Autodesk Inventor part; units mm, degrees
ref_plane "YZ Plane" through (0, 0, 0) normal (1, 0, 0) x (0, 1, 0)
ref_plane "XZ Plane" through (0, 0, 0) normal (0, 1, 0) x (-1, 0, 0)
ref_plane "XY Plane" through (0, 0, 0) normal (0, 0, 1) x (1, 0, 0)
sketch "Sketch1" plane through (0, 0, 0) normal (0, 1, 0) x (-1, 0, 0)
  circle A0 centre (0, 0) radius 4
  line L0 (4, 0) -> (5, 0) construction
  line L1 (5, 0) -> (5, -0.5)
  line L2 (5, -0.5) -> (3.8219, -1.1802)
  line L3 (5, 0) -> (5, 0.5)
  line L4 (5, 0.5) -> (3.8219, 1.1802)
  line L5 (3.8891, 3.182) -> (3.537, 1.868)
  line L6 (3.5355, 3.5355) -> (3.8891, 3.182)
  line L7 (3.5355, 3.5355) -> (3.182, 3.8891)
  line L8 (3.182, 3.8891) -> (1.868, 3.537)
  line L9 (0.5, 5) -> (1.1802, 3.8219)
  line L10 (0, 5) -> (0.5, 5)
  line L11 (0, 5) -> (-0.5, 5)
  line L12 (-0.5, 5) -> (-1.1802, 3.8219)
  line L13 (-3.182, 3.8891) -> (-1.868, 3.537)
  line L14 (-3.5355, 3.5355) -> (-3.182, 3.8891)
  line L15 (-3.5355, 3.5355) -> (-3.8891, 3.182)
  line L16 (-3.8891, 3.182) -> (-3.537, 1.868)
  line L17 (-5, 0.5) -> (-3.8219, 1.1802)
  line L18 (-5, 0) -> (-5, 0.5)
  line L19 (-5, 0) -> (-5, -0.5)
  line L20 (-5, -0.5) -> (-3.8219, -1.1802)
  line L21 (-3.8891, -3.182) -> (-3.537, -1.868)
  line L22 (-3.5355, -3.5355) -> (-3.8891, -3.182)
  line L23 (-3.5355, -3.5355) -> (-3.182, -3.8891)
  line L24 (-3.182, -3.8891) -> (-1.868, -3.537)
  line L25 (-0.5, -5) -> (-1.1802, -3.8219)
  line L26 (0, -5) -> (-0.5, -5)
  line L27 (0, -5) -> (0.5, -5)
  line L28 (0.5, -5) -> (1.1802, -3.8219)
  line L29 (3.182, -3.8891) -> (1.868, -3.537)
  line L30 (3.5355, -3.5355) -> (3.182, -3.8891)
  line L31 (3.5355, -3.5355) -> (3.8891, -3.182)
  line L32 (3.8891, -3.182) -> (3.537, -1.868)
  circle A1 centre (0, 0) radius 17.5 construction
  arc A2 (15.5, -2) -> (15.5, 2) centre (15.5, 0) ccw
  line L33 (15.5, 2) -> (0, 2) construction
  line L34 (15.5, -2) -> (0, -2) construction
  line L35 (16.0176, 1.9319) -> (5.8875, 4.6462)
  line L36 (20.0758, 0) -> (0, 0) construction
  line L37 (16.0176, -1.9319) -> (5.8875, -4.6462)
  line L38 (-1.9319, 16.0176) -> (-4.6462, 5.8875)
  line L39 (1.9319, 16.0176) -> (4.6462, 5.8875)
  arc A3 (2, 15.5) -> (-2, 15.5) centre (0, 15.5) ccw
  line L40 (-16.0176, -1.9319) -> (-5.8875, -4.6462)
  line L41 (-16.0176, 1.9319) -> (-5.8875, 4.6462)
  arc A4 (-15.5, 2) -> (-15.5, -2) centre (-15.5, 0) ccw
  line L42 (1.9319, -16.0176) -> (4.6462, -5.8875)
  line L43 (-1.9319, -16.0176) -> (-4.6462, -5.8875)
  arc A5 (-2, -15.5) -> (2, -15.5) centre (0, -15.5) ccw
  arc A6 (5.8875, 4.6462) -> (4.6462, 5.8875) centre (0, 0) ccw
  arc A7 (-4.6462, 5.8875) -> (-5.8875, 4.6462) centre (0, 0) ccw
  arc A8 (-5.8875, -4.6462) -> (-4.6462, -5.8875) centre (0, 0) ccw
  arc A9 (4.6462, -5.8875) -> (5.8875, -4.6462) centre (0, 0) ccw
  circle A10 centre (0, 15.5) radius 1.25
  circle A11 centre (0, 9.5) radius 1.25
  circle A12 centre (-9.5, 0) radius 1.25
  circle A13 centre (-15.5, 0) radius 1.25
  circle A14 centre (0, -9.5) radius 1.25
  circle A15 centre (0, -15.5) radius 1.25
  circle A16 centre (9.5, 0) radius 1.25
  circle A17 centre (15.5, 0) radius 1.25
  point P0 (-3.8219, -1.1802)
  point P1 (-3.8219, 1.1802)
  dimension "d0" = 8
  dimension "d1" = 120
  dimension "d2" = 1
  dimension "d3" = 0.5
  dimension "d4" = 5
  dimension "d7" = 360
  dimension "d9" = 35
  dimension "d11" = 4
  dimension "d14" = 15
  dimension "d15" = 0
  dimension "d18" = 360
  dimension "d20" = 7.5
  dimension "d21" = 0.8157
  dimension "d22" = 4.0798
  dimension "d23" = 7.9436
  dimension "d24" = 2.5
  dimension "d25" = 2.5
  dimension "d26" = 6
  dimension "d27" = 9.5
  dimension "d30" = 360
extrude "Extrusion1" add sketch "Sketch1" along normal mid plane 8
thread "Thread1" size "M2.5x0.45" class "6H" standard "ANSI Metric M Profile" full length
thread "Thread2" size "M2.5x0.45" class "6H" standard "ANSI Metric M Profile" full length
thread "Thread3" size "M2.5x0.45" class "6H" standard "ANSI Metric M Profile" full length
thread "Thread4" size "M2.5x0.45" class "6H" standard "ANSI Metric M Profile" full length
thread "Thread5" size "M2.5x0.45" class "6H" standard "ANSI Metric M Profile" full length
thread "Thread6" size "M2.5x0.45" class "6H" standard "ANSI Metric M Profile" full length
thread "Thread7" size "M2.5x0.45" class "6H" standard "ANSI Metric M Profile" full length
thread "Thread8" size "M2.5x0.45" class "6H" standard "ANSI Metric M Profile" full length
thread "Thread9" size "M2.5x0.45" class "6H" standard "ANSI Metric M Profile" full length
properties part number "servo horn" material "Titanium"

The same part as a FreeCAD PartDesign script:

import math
import FreeCAD as App
import Part
import Sketcher
Q = App.Units.Quantity

doc = App.newDocument("Part")
body = doc.addObject("PartDesign::Body", "Body")

sketch1 = doc.addObject("Sketcher::SketchObject", "Sketch")
body.addObject(sketch1)
sketch1.AttachmentSupport = (doc.XZ_Plane, [""])
sketch1.MapMode = "FlatFace"
sketch1.addGeometry([
    Part.LineSegment(App.Vector(-5.89, -4.65, 0), App.Vector(-16.02, -1.93, 0)),
    Part.ArcOfCircle(Part.Circle(App.Vector(-15.5, 0, 0), App.Vector(0, 0, 1), 2), math.radians(105), math.radians(255)),
    Part.LineSegment(App.Vector(-16.02, 1.93, 0), App.Vector(-5.89, 4.65, 0)),
    Part.ArcOfCircle(Part.Circle(App.Vector(0, 0, 0), App.Vector(0, 0, 1), 7.5), math.radians(128.28), math.radians(141.72)),
    Part.LineSegment(App.Vector(-4.65, 5.89, 0), App.Vector(-1.93, 16.02, 0)),
    Part.ArcOfCircle(Part.Circle(App.Vector(0, 15.5, 0), App.Vector(0, 0, 1), 2), math.radians(15), math.radians(165)),
    Part.LineSegment(App.Vector(1.93, 16.02, 0), App.Vector(4.65, 5.89, 0)),
    Part.ArcOfCircle(Part.Circle(App.Vector(0, 0, 0), App.Vector(0, 0, 1), 7.5), math.radians(38.28), math.radians(51.72)),
    Part.LineSegment(App.Vector(5.89, 4.65, 0), App.Vector(16.02, 1.93, 0)),
    Part.ArcOfCircle(Part.Circle(App.Vector(15.5, 0, 0), App.Vector(0, 0, 1), 2), math.radians(-75), math.radians(75)),
    Part.LineSegment(App.Vector(16.02, -1.93, 0), App.Vector(5.89, -4.65, 0)),
    Part.ArcOfCircle(Part.Circle(App.Vector(0, 0, 0), App.Vector(0, 0, 1), 7.5), math.radians(-51.72), math.radians(-38.28)),
    Part.LineSegment(App.Vector(4.65, -5.89, 0), App.Vector(1.93, -16.02, 0)),
    Part.ArcOfCircle(Part.Circle(App.Vector(0, -15.5, 0), App.Vector(0, 0, 1), 2), math.radians(-165), math.radians(-15)),
    Part.LineSegment(App.Vector(-1.93, -16.02, 0), App.Vector(-4.65, -5.89, 0)),
    Part.ArcOfCircle(Part.Circle(App.Vector(0, 0, 0), App.Vector(0, 0, 1), 7.5), math.radians(-141.72), math.radians(-128.28)),
    Part.Circle(App.Vector(0, -15.5, 0), App.Vector(0, 0, 1), 1.25),
    Part.Circle(App.Vector(0, -9.5, 0), App.Vector(0, 0, 1), 1.25),
    Part.Circle(App.Vector(15.5, 0, 0), App.Vector(0, 0, 1), 1.25),
    Part.Circle(App.Vector(9.5, 0, 0), App.Vector(0, 0, 1), 1.25),
    Part.ArcOfCircle(Part.Circle(App.Vector(0, 0, 0), App.Vector(0, 0, 1), 4), math.radians(152.16), math.radians(162.84)),
    Part.LineSegment(App.Vector(-3.82, 1.18, 0), App.Vector(-5, 0.5, 0)),
    Part.LineSegment(App.Vector(-5, 0.5, 0), App.Vector(-5, -0.5, 0)),
    Part.LineSegment(App.Vector(-5, -0.5, 0), App.Vector(-3.82, -1.18, 0)),
    Part.ArcOfCircle(Part.Circle(App.Vector(0, 0, 0), App.Vector(0, 0, 1), 4), math.radians(-162.84), math.radians(-152.16)),
    Part.LineSegment(App.Vector(-3.54, -1.87, 0), App.Vector(-3.89, -3.18, 0)),
    Part.LineSegment(App.Vector(-3.89, -3.18, 0), App.Vector(-3.54, -3.54, 0)),
    Part.LineSegment(App.Vector(-3.54, -3.54, 0), App.Vector(-3.18, -3.89, 0)),
    Part.LineSegment(App.Vector(-3.18, -3.89, 0), App.Vector(-1.87, -3.54, 0)),
    Part.ArcOfCircle(Part.Circle(App.Vector(0, 0, 0), App.Vector(0, 0, 1), 4), math.radians(-117.84), math.radians(-107.16)),
    Part.LineSegment(App.Vector(-1.18, -3.82, 0), App.Vector(-0.5, -5, 0)),
    Part.LineSegment(App.Vector(-0.5, -5, 0), App.Vector(0.5, -5, 0)),
    Part.LineSegment(App.Vector(0.5, -5, 0), App.Vector(1.18, -3.82, 0)),
    Part.ArcOfCircle(Part.Circle(App.Vector(0, 0, 0), App.Vector(0, 0, 1), 4), math.radians(-72.84), math.radians(-62.16)),
    Part.LineSegment(App.Vector(1.87, -3.54, 0), App.Vector(3.18, -3.89, 0)),
    Part.LineSegment(App.Vector(3.18, -3.89, 0), App.Vector(3.54, -3.54, 0)),
    Part.LineSegment(App.Vector(3.54, -3.54, 0), App.Vector(3.89, -3.18, 0)),
    Part.LineSegment(App.Vector(3.89, -3.18, 0), App.Vector(3.54, -1.87, 0)),
    Part.ArcOfCircle(Part.Circle(App.Vector(0, 0, 0), App.Vector(0, 0, 1), 4), math.radians(-27.84), math.radians(-17.16)),
    Part.LineSegment(App.Vector(3.82, -1.18, 0), App.Vector(5, -0.5, 0)),
    Part.LineSegment(App.Vector(5, -0.5, 0), App.Vector(5, 0.5, 0)),
    Part.LineSegment(App.Vector(5, 0.5, 0), App.Vector(3.82, 1.18, 0)),
    Part.ArcOfCircle(Part.Circle(App.Vector(0, 0, 0), App.Vector(0, 0, 1), 4), math.radians(17.16), math.radians(27.84)),
    Part.LineSegment(App.Vector(3.54, 1.87, 0), App.Vector(3.89, 3.18, 0)),
    Part.LineSegment(App.Vector(3.89, 3.18, 0), App.Vector(3.54, 3.54, 0)),
    Part.LineSegment(App.Vector(3.54, 3.54, 0), App.Vector(3.18, 3.89, 0)),
    Part.LineSegment(App.Vector(3.18, 3.89, 0), App.Vector(1.87, 3.54, 0)),
    Part.ArcOfCircle(Part.Circle(App.Vector(0, 0, 0), App.Vector(0, 0, 1), 4), math.radians(62.16), math.radians(72.84)),
    Part.LineSegment(App.Vector(1.18, 3.82, 0), App.Vector(0.5, 5, 0)),
    Part.LineSegment(App.Vector(0.5, 5, 0), App.Vector(-0.5, 5, 0)),
    Part.LineSegment(App.Vector(-0.5, 5, 0), App.Vector(-1.18, 3.82, 0)),
    Part.ArcOfCircle(Part.Circle(App.Vector(0, 0, 0), App.Vector(0, 0, 1), 4), math.radians(107.16), math.radians(117.84)),
    Part.LineSegment(App.Vector(-1.87, 3.54, 0), App.Vector(-3.18, 3.89, 0)),
    Part.LineSegment(App.Vector(-3.18, 3.89, 0), App.Vector(-3.54, 3.54, 0)),
    Part.LineSegment(App.Vector(-3.54, 3.54, 0), App.Vector(-3.89, 3.18, 0)),
    Part.LineSegment(App.Vector(-3.89, 3.18, 0), App.Vector(-3.54, 1.87, 0)),
    Part.Circle(App.Vector(-9.5, 0, 0), App.Vector(0, 0, 1), 1.25),
    Part.Circle(App.Vector(-15.5, 0, 0), App.Vector(0, 0, 1), 1.25),
    Part.Circle(App.Vector(0, 9.5, 0), App.Vector(0, 0, 1), 1.25),
    Part.Circle(App.Vector(0, 15.5, 0), App.Vector(0, 0, 1), 1.25),
], False)
sketch1.addConstraint([
    Sketcher.Constraint("Tangent", 0, 2, 1, 2),
    Sketcher.Constraint("Tangent", 1, 1, 2, 1),
    Sketcher.Constraint("Coincident", 2, 2, 3, 2),
    Sketcher.Constraint("Coincident", 3, 1, 4, 1),
    Sketcher.Constraint("Tangent", 4, 2, 5, 2),
    Sketcher.Constraint("Tangent", 5, 1, 6, 1),
    Sketcher.Constraint("Coincident", 6, 2, 7, 2),
    Sketcher.Constraint("Coincident", 7, 1, 8, 1),
    Sketcher.Constraint("Tangent", 8, 2, 9, 2),
    Sketcher.Constraint("Tangent", 9, 1, 10, 1),
    Sketcher.Constraint("Coincident", 10, 2, 11, 2),
    Sketcher.Constraint("Coincident", 11, 1, 12, 1),
    Sketcher.Constraint("Tangent", 12, 2, 13, 2),
    Sketcher.Constraint("Tangent", 13, 1, 14, 1),
    Sketcher.Constraint("Coincident", 14, 2, 15, 2),
    Sketcher.Constraint("Coincident", 15, 1, 0, 1),
    Sketcher.Constraint("Coincident", 20, 2, 21, 1),
    Sketcher.Constraint("Coincident", 21, 2, 22, 1),
    Sketcher.Constraint("Coincident", 22, 2, 23, 1),
    Sketcher.Constraint("Coincident", 23, 2, 24, 1),
    Sketcher.Constraint("Coincident", 24, 2, 25, 1),
    Sketcher.Constraint("Coincident", 25, 2, 26, 1),
    Sketcher.Constraint("Coincident", 26, 2, 27, 1),
    Sketcher.Constraint("Coincident", 27, 2, 28, 1),
    Sketcher.Constraint("Coincident", 28, 2, 29, 1),
    Sketcher.Constraint("Coincident", 29, 2, 30, 1),
    Sketcher.Constraint("Coincident", 30, 2, 31, 1),
    Sketcher.Constraint("Coincident", 31, 2, 32, 1),
    Sketcher.Constraint("Coincident", 32, 2, 33, 1),
    Sketcher.Constraint("Coincident", 33, 2, 34, 1),
    Sketcher.Constraint("Coincident", 34, 2, 35, 1),
    Sketcher.Constraint("Coincident", 35, 2, 36, 1),
    Sketcher.Constraint("Coincident", 36, 2, 37, 1),
    Sketcher.Constraint("Coincident", 37, 2, 38, 1),
    Sketcher.Constraint("Coincident", 38, 2, 39, 1),
    Sketcher.Constraint("Coincident", 39, 2, 40, 1),
    Sketcher.Constraint("Coincident", 40, 2, 41, 1),
    Sketcher.Constraint("Coincident", 41, 2, 42, 1),
    Sketcher.Constraint("Coincident", 42, 2, 43, 1),
    Sketcher.Constraint("Coincident", 43, 2, 44, 1),
    Sketcher.Constraint("Coincident", 44, 2, 45, 1),
    Sketcher.Constraint("Coincident", 45, 2, 46, 1),
    Sketcher.Constraint("Coincident", 46, 2, 47, 1),
    Sketcher.Constraint("Coincident", 47, 2, 48, 1),
    Sketcher.Constraint("Coincident", 48, 2, 49, 1),
    Sketcher.Constraint("Coincident", 49, 2, 50, 1),
    Sketcher.Constraint("Coincident", 50, 2, 51, 1),
    Sketcher.Constraint("Coincident", 51, 2, 52, 1),
    Sketcher.Constraint("Coincident", 52, 2, 53, 1),
    Sketcher.Constraint("Coincident", 53, 2, 54, 1),
    Sketcher.Constraint("Coincident", 54, 2, 55, 1),
    Sketcher.Constraint("Coincident", 55, 2, 20, 1),
    Sketcher.Constraint("Vertical", 22),
    Sketcher.Constraint("Horizontal", 31),
    Sketcher.Constraint("Vertical", 40),
    Sketcher.Constraint("Horizontal", 49),
    Sketcher.Constraint("Coincident", 3, 3, -1, 1),
    Sketcher.Constraint("Coincident", 7, 3, -1, 1),
    Sketcher.Constraint("Coincident", 11, 3, -1, 1),
    Sketcher.Constraint("Coincident", 15, 3, -1, 1),
    Sketcher.Constraint("Coincident", 20, 3, -1, 1),
    Sketcher.Constraint("Coincident", 24, 3, -1, 1),
    Sketcher.Constraint("Coincident", 29, 3, -1, 1),
    Sketcher.Constraint("Coincident", 33, 3, -1, 1),
    Sketcher.Constraint("Coincident", 38, 3, -1, 1),
    Sketcher.Constraint("Coincident", 42, 3, -1, 1),
    Sketcher.Constraint("Coincident", 47, 3, -1, 1),
    Sketcher.Constraint("Coincident", 51, 3, -1, 1),
    Sketcher.Constraint("Coincident", 16, 3, 13, 3),
    Sketcher.Constraint("Coincident", 18, 3, 9, 3),
    Sketcher.Constraint("Coincident", 57, 3, 1, 3),
    Sketcher.Constraint("Coincident", 59, 3, 5, 3),
    Sketcher.Constraint("Equal", 1, 5),
    Sketcher.Constraint("Equal", 3, 7),
    Sketcher.Constraint("Equal", 5, 9),
    Sketcher.Constraint("Equal", 7, 11),
    Sketcher.Constraint("Equal", 9, 13),
    Sketcher.Constraint("Equal", 11, 15),
    Sketcher.Constraint("Equal", 16, 17),
    Sketcher.Constraint("Equal", 17, 18),
    Sketcher.Constraint("Equal", 18, 19),
    Sketcher.Constraint("Equal", 20, 24),
    Sketcher.Constraint("Equal", 24, 29),
    Sketcher.Constraint("Equal", 29, 33),
    Sketcher.Constraint("Equal", 33, 38),
    Sketcher.Constraint("Equal", 38, 42),
    Sketcher.Constraint("Equal", 42, 47),
    Sketcher.Constraint("Equal", 47, 51),
    Sketcher.Constraint("Equal", 19, 56),
    Sketcher.Constraint("Equal", 56, 57),
    Sketcher.Constraint("Equal", 57, 58),
    Sketcher.Constraint("Equal", 58, 59),
    Sketcher.Constraint("Symmetric", 1, 3, 9, 3, -1, 1),
    Sketcher.Constraint("Symmetric", 5, 3, 13, 3, -1, 1),
    Sketcher.Constraint("Symmetric", 19, 3, 56, 3, -1, 1),
    Sketcher.Constraint("Symmetric", 17, 3, 58, 3, -1, 1),
    Sketcher.Constraint("Symmetric", 21, 2, 39, 2, -1, 1),
    Sketcher.Constraint("Symmetric", 25, 2, 43, 2, -1, 1),
    Sketcher.Constraint("Symmetric", 26, 2, 44, 2, -1, 1),
    Sketcher.Constraint("Symmetric", 27, 2, 45, 2, -1, 1),
    Sketcher.Constraint("Symmetric", 30, 2, 48, 2, -1, 1),
    Sketcher.Constraint("Symmetric", 34, 2, 52, 2, -1, 1),
    Sketcher.Constraint("Symmetric", 35, 2, 53, 2, -1, 1),
    Sketcher.Constraint("Symmetric", 36, 2, 54, 2, -1, 1),
    Sketcher.Constraint("Symmetric", 4, 2, 5, 1, -2),
    Sketcher.Constraint("Symmetric", 1, 1, 8, 2, -2),
    Sketcher.Constraint("Symmetric", 27, 2, 34, 2, -2),
    Sketcher.Constraint("Symmetric", 26, 2, 35, 2, -2),
    Sketcher.Constraint("Symmetric", 25, 2, 36, 2, -2),
    Sketcher.Constraint("PointOnObject", 17, 3, -2),
    Sketcher.Constraint("PointOnObject", 19, 3, -1),
    Sketcher.Constraint("Perpendicular", 0, 4),
    Sketcher.Constraint("Perpendicular", 2, 6),
    Sketcher.Constraint("Perpendicular", 6, 10),
    Sketcher.Constraint("Perpendicular", 8, 12),
    Sketcher.Constraint("Perpendicular", 10, 14),
    Sketcher.Constraint("Parallel", 12, 25),
    Sketcher.Constraint("Parallel", 26, 27),
    Sketcher.Constraint("Perpendicular", 14, 28),
    Sketcher.Constraint("Perpendicular", 21, 30),
    Sketcher.Constraint("Perpendicular", 23, 32),
    Sketcher.Constraint("Perpendicular", 25, 34),
    Sketcher.Constraint("Perpendicular", 27, 35),
    Sketcher.Constraint("Perpendicular", 28, 37),
    Sketcher.Constraint("Perpendicular", 30, 39),
    Sketcher.Constraint("Perpendicular", 32, 41),
    Sketcher.Constraint("Perpendicular", 34, 43),
    Sketcher.Constraint("Perpendicular", 37, 46),
    Sketcher.Constraint("Perpendicular", 39, 48),
    Sketcher.Constraint("Perpendicular", 41, 50),
    Sketcher.Constraint("Perpendicular", 43, 52),
    Sketcher.Constraint("Perpendicular", 46, 55),
    Sketcher.Constraint("Horizontal", 29, 2, 32, 2),
    Sketcher.Constraint("Horizontal", 23, 2, 38, 2),
    Sketcher.Constraint("Horizontal", 22, 2, 39, 2),
    Sketcher.Constraint("Horizontal", 21, 2, 40, 2),
    Sketcher.Constraint("Horizontal", 47, 2, 50, 2),
    Sketcher.Constraint("Equal", 49, 22),
    Sketcher.Constraint("Equal", 2, 4),
    Sketcher.Constraint("Equal", 23, 25),
    Sketcher.Constraint("Equal", 26, 27),
    Sketcher.Constraint("Equal", 25, 28),
    Sketcher.Constraint("Equal", 28, 30),
    Sketcher.Constraint("Radius", 1, 2.0),
    Sketcher.Constraint("Radius", 20, 4.0),
    Sketcher.Constraint("Diameter", 16, 2.5),
    Sketcher.Constraint("Radius", 3, 7.5),
    Sketcher.Constraint("DistanceX", 31, 1, 31, 2, 1.0),
    Sketcher.Constraint("Angle", 2, Q("14.9997 deg")),
    Sketcher.Constraint("DistanceX", 21, 2, -1, 1, 5.0),
    Sketcher.Constraint("Distance", 26, 0.5),
    Sketcher.Constraint("DistanceY", 17, 3, -1, 1, 9.5),
    Sketcher.Constraint("DistanceX", -1, 1, 19, 3, 9.5),
    Sketcher.Constraint("Angle", 21, Q("-149.9991 deg")),
    Sketcher.Constraint("DistanceX", 1, 3, -1, 1, 15.5),
])
pad1 = doc.addObject("PartDesign::Pad", "Pad")
body.addObject(pad1)
pad1.Profile = sketch1
pad1.Length = 8
pad1.Midplane = True

doc.recompute()
